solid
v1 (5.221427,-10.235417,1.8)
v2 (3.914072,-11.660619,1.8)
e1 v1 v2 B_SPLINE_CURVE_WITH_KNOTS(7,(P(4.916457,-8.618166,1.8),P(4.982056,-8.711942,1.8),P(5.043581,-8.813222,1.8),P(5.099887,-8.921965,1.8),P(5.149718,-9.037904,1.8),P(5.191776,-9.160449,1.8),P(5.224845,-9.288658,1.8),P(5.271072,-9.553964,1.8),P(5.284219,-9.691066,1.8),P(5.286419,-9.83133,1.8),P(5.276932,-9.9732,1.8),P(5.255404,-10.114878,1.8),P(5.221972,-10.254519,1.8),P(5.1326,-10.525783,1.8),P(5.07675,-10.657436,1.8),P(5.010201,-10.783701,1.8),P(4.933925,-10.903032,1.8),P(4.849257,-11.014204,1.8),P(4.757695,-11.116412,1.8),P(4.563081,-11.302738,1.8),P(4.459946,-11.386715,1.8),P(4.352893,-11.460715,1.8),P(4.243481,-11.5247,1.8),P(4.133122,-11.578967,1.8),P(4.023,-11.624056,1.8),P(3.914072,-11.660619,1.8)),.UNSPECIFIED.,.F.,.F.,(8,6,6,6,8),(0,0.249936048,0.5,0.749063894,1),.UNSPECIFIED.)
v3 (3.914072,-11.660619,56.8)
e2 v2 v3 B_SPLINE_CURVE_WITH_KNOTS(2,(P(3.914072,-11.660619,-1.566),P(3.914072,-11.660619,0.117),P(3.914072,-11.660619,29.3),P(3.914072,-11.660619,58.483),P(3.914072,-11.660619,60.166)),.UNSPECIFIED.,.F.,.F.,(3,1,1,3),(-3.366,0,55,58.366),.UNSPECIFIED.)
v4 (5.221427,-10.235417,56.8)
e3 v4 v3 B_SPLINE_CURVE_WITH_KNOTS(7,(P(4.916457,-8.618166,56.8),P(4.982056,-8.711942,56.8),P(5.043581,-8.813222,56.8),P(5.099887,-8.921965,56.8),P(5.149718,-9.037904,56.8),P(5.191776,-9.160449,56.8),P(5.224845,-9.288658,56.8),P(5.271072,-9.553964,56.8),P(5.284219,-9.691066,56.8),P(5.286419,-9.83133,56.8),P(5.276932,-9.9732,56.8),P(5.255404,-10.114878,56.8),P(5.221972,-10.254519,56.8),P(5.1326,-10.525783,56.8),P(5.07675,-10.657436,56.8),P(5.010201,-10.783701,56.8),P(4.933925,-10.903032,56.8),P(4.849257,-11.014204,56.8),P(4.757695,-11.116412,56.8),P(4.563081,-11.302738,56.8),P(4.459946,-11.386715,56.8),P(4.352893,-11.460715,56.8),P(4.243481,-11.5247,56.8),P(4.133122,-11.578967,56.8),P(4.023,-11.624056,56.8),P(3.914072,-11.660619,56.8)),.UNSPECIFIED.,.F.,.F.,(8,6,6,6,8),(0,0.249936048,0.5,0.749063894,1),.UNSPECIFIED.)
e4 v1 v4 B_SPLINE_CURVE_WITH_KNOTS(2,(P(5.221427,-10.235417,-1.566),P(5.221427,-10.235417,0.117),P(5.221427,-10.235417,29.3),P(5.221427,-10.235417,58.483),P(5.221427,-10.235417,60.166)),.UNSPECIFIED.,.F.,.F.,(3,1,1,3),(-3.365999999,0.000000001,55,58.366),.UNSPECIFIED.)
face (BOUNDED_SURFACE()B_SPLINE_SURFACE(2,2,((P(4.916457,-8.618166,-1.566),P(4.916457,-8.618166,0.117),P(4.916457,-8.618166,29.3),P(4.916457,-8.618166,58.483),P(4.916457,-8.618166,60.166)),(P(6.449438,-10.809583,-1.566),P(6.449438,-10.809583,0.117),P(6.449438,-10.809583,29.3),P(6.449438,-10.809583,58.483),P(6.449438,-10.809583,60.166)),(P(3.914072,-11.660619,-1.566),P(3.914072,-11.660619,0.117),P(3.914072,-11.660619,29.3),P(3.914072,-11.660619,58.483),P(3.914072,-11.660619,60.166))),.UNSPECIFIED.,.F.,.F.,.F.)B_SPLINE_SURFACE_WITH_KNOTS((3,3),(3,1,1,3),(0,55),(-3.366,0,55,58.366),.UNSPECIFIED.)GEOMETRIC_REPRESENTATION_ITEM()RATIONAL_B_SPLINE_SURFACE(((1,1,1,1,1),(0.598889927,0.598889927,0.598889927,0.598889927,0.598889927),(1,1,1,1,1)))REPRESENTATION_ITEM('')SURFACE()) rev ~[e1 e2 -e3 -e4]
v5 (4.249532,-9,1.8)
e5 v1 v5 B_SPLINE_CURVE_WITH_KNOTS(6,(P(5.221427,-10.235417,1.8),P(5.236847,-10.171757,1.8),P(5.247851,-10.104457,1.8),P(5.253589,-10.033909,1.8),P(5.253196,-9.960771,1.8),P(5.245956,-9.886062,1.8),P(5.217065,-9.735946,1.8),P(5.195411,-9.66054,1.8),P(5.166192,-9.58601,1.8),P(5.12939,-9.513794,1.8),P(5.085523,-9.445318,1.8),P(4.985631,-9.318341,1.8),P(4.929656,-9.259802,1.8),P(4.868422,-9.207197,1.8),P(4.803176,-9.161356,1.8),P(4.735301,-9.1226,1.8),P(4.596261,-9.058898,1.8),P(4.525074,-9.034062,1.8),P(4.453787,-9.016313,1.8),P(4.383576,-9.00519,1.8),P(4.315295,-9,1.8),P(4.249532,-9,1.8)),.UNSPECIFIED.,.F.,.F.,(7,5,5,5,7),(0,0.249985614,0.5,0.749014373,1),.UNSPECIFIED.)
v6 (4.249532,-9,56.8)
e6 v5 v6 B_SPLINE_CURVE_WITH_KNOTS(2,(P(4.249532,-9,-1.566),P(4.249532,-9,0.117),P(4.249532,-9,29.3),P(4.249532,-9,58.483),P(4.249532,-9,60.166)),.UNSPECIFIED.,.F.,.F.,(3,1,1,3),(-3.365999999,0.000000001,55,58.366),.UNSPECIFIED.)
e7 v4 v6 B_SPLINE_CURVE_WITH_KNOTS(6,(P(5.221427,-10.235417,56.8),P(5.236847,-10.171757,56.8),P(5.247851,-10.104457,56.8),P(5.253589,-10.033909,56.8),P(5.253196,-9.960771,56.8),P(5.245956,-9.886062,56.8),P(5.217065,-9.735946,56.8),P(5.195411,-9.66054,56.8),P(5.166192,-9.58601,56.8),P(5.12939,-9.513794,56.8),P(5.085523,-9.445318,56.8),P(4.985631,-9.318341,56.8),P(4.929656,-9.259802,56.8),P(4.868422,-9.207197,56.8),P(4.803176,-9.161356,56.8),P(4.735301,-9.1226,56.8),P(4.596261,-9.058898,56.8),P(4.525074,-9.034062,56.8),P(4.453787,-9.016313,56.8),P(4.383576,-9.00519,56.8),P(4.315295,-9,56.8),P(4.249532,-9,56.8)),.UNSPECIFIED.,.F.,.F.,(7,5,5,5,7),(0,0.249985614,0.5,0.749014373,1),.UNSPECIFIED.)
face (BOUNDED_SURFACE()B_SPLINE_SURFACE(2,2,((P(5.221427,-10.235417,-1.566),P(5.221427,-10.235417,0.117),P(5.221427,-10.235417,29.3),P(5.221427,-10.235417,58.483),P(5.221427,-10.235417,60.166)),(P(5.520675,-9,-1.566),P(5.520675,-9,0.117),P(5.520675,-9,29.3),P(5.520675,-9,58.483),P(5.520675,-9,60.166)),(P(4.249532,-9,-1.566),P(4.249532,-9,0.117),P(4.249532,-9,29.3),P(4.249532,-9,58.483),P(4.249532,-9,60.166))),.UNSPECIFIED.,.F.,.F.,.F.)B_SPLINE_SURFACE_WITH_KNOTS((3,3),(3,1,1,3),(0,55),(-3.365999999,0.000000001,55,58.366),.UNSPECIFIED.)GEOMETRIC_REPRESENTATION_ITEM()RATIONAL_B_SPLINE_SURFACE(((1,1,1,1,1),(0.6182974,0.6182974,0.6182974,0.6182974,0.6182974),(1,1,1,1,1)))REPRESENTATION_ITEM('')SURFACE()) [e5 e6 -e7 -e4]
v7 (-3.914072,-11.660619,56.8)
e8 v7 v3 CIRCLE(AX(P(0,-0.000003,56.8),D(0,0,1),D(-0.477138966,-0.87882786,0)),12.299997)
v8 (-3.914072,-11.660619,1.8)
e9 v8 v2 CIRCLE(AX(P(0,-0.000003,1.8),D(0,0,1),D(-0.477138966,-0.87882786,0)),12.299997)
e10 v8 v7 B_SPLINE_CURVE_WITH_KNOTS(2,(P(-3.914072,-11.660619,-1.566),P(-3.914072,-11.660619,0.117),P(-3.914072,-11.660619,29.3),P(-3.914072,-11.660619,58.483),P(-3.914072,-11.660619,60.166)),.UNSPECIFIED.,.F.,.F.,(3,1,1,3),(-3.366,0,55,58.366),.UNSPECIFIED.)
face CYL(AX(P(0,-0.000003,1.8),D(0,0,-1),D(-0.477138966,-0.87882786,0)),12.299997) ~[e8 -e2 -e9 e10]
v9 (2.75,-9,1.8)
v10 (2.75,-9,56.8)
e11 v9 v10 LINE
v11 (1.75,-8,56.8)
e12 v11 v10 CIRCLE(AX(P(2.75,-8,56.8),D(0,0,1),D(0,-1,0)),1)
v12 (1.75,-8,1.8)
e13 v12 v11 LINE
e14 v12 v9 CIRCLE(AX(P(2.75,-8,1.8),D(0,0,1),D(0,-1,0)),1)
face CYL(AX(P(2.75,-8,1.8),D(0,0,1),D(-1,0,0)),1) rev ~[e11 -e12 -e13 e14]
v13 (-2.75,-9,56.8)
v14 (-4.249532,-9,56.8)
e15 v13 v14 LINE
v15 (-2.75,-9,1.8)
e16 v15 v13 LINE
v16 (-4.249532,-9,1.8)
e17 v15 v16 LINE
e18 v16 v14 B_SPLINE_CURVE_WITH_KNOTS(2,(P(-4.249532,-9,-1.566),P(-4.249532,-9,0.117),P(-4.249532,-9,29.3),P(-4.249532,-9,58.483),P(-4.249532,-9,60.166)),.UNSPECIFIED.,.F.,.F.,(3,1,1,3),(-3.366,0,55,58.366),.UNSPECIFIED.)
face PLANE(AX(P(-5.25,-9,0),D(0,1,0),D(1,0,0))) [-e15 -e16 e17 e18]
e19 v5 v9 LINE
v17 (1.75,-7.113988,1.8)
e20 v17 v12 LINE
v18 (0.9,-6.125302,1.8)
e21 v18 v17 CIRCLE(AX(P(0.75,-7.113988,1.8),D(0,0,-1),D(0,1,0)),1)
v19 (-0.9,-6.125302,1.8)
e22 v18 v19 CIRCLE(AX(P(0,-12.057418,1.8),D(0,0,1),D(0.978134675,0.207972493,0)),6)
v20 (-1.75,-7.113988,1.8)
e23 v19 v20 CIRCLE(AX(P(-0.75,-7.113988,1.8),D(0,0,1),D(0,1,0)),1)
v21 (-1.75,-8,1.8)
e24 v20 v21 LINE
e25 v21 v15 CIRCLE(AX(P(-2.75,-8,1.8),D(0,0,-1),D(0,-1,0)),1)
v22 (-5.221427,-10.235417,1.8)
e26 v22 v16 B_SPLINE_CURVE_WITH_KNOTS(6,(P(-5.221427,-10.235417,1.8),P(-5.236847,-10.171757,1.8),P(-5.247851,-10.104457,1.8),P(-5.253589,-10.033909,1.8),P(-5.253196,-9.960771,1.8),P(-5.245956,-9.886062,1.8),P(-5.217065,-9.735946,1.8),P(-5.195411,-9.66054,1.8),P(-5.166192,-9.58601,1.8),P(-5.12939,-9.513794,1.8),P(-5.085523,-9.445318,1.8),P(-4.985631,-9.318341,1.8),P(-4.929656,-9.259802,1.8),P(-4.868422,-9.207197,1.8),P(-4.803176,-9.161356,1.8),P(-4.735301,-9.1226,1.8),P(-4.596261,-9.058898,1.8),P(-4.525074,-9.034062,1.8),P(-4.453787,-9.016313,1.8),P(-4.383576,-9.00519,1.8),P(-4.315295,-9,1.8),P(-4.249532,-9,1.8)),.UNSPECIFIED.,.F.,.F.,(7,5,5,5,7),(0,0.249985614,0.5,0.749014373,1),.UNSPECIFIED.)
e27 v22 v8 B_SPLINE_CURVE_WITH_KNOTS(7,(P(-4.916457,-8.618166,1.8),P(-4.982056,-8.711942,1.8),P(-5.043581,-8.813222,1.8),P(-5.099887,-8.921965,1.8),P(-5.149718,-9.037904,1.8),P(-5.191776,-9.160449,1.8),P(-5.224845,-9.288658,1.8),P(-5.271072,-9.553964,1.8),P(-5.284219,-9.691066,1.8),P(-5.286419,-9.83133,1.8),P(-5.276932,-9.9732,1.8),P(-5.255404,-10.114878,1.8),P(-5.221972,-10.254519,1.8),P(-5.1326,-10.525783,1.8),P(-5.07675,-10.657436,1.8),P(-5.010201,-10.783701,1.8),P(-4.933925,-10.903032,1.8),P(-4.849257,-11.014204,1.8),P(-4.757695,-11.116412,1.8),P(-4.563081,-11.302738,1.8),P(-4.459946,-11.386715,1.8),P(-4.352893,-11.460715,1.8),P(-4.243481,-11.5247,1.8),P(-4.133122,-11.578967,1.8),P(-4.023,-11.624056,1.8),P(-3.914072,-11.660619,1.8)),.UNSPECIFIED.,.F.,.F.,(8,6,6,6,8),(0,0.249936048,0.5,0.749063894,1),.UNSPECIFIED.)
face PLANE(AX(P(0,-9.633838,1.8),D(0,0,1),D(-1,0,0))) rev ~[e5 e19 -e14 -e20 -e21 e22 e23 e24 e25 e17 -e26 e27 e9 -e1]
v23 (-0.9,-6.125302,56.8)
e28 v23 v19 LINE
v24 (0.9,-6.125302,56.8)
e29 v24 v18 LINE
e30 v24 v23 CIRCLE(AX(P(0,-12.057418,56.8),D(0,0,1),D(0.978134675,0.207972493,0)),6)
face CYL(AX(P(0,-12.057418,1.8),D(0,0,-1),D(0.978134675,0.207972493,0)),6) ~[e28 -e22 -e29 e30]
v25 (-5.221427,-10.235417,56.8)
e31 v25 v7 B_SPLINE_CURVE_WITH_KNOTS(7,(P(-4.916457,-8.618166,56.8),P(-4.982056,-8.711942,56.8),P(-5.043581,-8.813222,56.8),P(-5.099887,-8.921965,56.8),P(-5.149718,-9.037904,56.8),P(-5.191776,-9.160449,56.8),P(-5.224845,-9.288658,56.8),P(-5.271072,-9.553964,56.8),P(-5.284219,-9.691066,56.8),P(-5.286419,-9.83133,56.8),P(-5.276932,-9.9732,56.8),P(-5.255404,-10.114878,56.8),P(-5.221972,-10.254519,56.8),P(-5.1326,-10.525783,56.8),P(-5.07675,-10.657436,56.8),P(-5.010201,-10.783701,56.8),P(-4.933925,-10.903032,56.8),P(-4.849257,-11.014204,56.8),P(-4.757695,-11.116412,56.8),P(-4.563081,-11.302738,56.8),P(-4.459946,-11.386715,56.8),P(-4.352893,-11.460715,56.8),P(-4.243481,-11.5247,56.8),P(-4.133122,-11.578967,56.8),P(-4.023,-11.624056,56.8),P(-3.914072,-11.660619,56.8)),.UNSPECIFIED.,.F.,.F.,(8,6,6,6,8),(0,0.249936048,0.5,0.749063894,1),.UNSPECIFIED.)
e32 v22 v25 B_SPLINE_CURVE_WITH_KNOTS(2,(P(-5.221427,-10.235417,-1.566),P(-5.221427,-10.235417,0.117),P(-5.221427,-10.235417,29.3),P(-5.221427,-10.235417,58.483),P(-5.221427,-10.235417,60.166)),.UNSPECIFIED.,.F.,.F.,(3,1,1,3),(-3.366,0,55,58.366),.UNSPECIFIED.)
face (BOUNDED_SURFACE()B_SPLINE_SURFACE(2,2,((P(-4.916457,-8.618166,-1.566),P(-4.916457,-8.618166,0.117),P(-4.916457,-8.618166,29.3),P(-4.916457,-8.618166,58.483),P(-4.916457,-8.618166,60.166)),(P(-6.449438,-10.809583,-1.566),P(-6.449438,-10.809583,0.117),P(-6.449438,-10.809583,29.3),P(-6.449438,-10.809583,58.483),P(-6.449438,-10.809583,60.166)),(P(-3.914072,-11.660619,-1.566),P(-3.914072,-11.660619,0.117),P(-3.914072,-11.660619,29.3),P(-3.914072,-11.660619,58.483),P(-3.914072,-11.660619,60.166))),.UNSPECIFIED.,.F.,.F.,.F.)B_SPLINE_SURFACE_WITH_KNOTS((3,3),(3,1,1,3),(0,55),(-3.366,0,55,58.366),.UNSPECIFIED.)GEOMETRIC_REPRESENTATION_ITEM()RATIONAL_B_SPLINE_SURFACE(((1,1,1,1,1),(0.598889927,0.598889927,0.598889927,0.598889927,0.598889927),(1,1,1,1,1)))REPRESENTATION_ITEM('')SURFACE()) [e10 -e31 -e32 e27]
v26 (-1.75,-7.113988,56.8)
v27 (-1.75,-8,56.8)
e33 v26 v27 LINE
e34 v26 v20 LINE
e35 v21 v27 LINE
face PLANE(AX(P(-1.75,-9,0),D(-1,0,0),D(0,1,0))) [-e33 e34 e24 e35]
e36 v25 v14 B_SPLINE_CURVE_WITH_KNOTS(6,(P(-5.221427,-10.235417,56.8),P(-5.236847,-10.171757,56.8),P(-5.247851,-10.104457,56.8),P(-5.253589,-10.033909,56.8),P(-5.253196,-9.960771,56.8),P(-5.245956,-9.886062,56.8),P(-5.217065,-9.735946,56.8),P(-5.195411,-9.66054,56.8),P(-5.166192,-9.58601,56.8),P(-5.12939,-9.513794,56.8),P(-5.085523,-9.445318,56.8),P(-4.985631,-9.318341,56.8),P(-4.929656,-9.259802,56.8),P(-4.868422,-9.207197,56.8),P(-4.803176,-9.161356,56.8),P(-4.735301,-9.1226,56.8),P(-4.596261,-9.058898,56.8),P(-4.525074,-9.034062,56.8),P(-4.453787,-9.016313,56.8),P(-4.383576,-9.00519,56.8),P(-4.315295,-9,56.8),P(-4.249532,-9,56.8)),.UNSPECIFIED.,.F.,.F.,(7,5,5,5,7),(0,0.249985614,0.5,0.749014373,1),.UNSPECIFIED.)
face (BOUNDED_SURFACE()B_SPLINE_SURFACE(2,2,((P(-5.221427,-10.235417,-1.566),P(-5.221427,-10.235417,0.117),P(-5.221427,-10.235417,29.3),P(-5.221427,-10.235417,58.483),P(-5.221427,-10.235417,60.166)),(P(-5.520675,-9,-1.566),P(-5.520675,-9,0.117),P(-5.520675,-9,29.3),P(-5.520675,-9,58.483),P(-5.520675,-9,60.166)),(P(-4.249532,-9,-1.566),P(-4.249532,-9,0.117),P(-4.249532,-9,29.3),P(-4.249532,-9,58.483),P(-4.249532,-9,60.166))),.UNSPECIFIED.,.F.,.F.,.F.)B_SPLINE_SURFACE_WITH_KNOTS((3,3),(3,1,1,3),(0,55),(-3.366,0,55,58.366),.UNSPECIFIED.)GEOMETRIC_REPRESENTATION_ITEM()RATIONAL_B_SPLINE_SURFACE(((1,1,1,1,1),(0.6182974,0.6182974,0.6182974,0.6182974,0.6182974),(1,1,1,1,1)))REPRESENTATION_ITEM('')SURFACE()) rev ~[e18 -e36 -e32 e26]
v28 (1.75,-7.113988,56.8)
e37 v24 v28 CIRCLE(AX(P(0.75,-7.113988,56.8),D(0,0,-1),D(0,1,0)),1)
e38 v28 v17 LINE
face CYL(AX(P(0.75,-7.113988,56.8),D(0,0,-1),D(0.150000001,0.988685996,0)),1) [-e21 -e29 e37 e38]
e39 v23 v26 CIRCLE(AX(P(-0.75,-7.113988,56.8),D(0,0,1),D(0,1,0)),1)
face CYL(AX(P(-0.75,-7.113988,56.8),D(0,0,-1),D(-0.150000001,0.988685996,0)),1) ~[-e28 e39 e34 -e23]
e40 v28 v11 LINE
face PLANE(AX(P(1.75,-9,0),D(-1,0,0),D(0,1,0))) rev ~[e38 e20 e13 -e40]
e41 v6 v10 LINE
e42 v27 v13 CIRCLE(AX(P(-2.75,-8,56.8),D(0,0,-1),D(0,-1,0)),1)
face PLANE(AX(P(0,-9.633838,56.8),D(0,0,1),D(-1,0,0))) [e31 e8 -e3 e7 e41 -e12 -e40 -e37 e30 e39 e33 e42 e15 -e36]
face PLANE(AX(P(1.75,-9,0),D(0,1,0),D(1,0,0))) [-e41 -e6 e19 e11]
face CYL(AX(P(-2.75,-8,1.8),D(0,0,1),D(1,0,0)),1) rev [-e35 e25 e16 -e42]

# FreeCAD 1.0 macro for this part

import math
import FreeCAD as App
import Part
import Sketcher
from FreeCAD import Vector
Q = App.Units.Quantity


def edges_at(feature, points):
    """Names of the edges that pass closest to the given points."""
    edges = feature.Shape.Edges
    near = lambda p: min(range(len(edges)), key=lambda i: edges[i].distToShape(Part.Vertex(*p))[0])
    return sorted({f"Edge{near(p) + 1}" for p in points})


def add_polygon(sketch, points):
    """Adds a closed chain of lines whose ends are joined by coincident constraints."""
    first, n = sketch.GeometryCount, len(points)
    for a, b in zip(points, points[1:] + points[:1]):
        sketch.addGeometry(Part.LineSegment(App.Vector(*a, 0), App.Vector(*b, 0)), False)
    for i in range(n):
        sketch.addConstraint(Sketcher.Constraint("Coincident", first + i, 2, first + (i + 1) % n, 1))

doc = App.newDocument("Part")
body = doc.addObject("PartDesign::Body", "Body")

# Sketch on XY plane
sketch1 = doc.addObject("Sketcher::SketchObject", "Sketch")
body.addObject(sketch1)
sketch1.AttachmentSupport = (doc.XY_Plane, [""])
sketch1.MapMode = "FlatFace"
add_polygon(sketch1, [(1.8, -6), (1.8, -9), (5.2, -9), (5.2, -6)])  # lines 0-3
sketch1.addConstraint(Sketcher.Constraint("Vertical", 0))
sketch1.addConstraint(Sketcher.Constraint("Horizontal", 1))
sketch1.addConstraint(Sketcher.Constraint("Vertical", 2))
sketch1.addConstraint(Sketcher.Constraint("Horizontal", 3))
sketch1.addConstraint(Sketcher.Constraint("DistanceY", 0, 2, 0, 1, Q("3 mm")))
sketch1.addConstraint(Sketcher.Constraint("DistanceX", 1, 1, 1, 2, Q("3.5 mm")))
sketch1.addConstraint(Sketcher.Constraint("DistanceY", 0, 2, -1, 1, Q("9 mm")))
sketch1.addConstraint(Sketcher.Constraint("DistanceX", -1, 1, 0, 2, Q("1.75 mm")))
pad1 = doc.addObject("PartDesign::Pad", "Pad")
body.addObject(pad1)
pad1.Profile = sketch1
pad1.Length = 60
body2 = doc.addObject("PartDesign::Body", "Body001")

# Sketch on XY plane
sketch2 = doc.addObject("Sketcher::SketchObject", "Sketch001")
body2.addObject(sketch2)
sketch2.AttachmentSupport = (doc.getObject("XY_Plane001"), [""])
sketch2.MapMode = "FlatFace"
add_polygon(sketch2, [(-5.2, -6), (-5.2, -9), (-1.8, -9), (-1.8, -6)])  # lines 0-3
sketch2.addConstraint(Sketcher.Constraint("Vertical", 0))
sketch2.addConstraint(Sketcher.Constraint("Horizontal", 1))
sketch2.addConstraint(Sketcher.Constraint("Vertical", 2))
sketch2.addConstraint(Sketcher.Constraint("Horizontal", 3))
sketch2.addConstraint(Sketcher.Constraint("DistanceY", 0, 2, 0, 1, Q("3 mm")))
sketch2.addConstraint(Sketcher.Constraint("DistanceX", 1, 1, 1, 2, Q("3.5 mm")))
sketch2.addConstraint(Sketcher.Constraint("DistanceY", 0, 2, -1, 1, Q("9 mm")))
sketch2.addConstraint(Sketcher.Constraint("DistanceX", 0, 2, -1, 1, Q("5.25 mm")))
pad2 = doc.addObject("PartDesign::Pad", "Pad001")
body2.addObject(pad2)
pad2.Profile = sketch2
pad2.Length = 60
body3 = doc.addObject("PartDesign::Body", "Body002")

# Sketch on XY plane
sketch3 = doc.addObject("Sketcher::SketchObject", "Sketch002")
body3.addObject(sketch3)
sketch3.AttachmentSupport = (doc.getObject("XY_Plane002"), [""])
sketch3.MapMode = "FlatFace"
sketch3.addGeometry(Part.ArcOfCircle(Part.Circle(Vector(0, 12, 0), Vector(0, 0, 1), 6), math.radians(-168), math.radians(-12)), False)
sketch3.addGeometry(Part.ArcOfCircle(Part.Circle(Vector(0, 0, 0), Vector(0, 0, 1), 12), math.radians(62), math.radians(118)), False)
sketch3.addConstraint(Sketcher.Constraint("Coincident", 0, 1, 1, 2))
sketch3.addConstraint(Sketcher.Constraint("Coincident", 1, 1, 0, 2))
sketch3.addConstraint(Sketcher.Constraint("Coincident", 1, 3, -1, 1))
sketch3.addConstraint(Sketcher.Constraint("PointOnObject", 0, 3, -2))
sketch3.addConstraint(Sketcher.Constraint("Radius", 0, Q("6 mm")))
sketch3.addConstraint(Sketcher.Constraint("Radius", 1, Q("12.299997 mm")))
sketch3.addConstraint(Sketcher.Constraint("DistanceX", -1, 1, 1, 1, Q("5.868808 mm")))
pad3 = doc.addObject("PartDesign::Pad", "Pad002")
body3.addObject(pad3)
pad3.Profile = sketch3
pad3.Length = 55
body4 = doc.addObject("PartDesign::Body", "Body003")
doc.recompute()

body3.Placement = App.Placement(Vector(0, 0, 1.8), App.Rotation(Vector(0, 0, 1), 180))
boolean = doc.addObject("PartDesign::Boolean", "Boolean")
body4.addObject(boolean)
boolean.Type = "Fuse"
boolean.addObjects([body3])
doc.recompute()

fillet = doc.addObject("PartDesign::Fillet", "Fillet")
body4.addObject(fillet)
fillet.Base = (boolean, edges_at(boolean, [(5.869, -10.81, 29.3), (-5.869, -10.81, 29.3)]))
fillet.Radius = 2
doc.recompute()

boolean2 = doc.addObject("PartDesign::Boolean", "Boolean001")
body4.addObject(boolean2)
boolean2.Type = "Cut"
boolean2.addObjects([body2])
doc.recompute()

boolean3 = doc.addObject("PartDesign::Boolean", "Boolean002")
body4.addObject(boolean3)
boolean3.Type = "Cut"
boolean3.addObjects([body])
doc.recompute()

fillet2 = doc.addObject("PartDesign::Fillet", "Fillet001")
body4.addObject(fillet2)
fillet2.Base = (boolean3, edges_at(boolean3, [
    (-1.75, -6.318, 29.3),
    (1.75, -6.318, 29.3),
    (-1.75, -9, 29.3),
    (1.75, -9, 29.3),
    (5.126, -9, 29.3),
    (-5.126, -9, 29.3),
]))
fillet2.Radius = 1

doc.recompute()
